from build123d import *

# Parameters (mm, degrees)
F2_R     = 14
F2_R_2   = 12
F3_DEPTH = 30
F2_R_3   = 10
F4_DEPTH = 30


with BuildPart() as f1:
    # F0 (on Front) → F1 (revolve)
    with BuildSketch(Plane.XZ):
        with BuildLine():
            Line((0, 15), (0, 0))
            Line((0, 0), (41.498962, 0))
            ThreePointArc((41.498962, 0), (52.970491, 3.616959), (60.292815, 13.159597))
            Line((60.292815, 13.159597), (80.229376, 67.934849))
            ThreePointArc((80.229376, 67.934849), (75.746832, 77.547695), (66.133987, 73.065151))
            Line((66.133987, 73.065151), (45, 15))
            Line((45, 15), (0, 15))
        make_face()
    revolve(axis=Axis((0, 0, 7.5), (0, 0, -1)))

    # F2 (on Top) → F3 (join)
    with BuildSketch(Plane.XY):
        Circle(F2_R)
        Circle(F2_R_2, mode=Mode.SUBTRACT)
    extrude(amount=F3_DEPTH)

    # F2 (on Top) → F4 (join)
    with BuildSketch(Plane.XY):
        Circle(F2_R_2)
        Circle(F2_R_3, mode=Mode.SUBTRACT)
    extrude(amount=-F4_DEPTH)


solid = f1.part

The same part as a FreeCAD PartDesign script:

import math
import FreeCAD as App
import Part
import Sketcher
from FreeCAD import Vector
Q = App.Units.Quantity

doc = App.newDocument("Part")
body = doc.addObject("PartDesign::Body", "Body")

sketch1 = body.newObject("Sketcher::SketchObject", "Sketch")
sketch1.AttachmentSupport = (doc.getObject("XZ_Plane"), [""])
sketch1.MapMode = "FlatFace"
sketch1.addGeometry([
    Part.LineSegment(Vector(0, 15, 0), Vector(0, 0, 0)),
    Part.LineSegment(Vector(0, 0, 0), Vector(41.498962, 0, 0)),
    Part.ArcOfCircle(Part.Circle(Vector(41.498962, 20.000001, 0), Vector(0, 0, 1), 20.000001), math.radians(-90.000001), math.radians(-20.000001)),
    Part.LineSegment(Vector(60.292815, 13.159597, 0), Vector(80.229376, 67.934849, 0)),
    Part.ArcOfCircle(Part.Circle(Vector(73.181682, 70.5, 0), Vector(0, 0, 1), 7.5), math.radians(-20.000002), math.radians(160.000002)),
    Part.LineSegment(Vector(66.133987, 73.065151, 0), Vector(45, 15, 0)),
    Part.LineSegment(Vector(45, 15, 0), Vector(0, 15, 0)),
], False)
sketch1.addConstraint([
    Sketcher.Constraint("Coincident", 0, 2, 1, 1),
    Sketcher.Constraint("Tangent", 1, 2, 2, 1),
    Sketcher.Constraint("Tangent", 2, 2, 3, 1),
    Sketcher.Constraint("Tangent", 3, 2, 4, 1),
    Sketcher.Constraint("Tangent", 4, 2, 5, 1),
    Sketcher.Constraint("Coincident", 5, 2, 6, 1),
    Sketcher.Constraint("Coincident", 6, 2, 0, 1),
    Sketcher.Constraint("Vertical", 0),
    Sketcher.Constraint("Horizontal", 1),
    Sketcher.Constraint("Horizontal", 6),
    Sketcher.Constraint("Coincident", 0, 2, -1, 1),
    Sketcher.Constraint("Parallel", 3, 5),
    Sketcher.Constraint("Radius", 2, 20.000001),
    Sketcher.Constraint("Radius", 4, 7.5),
    Sketcher.Constraint("DistanceX", 6, 2, 6, 1, 45.0),
    Sketcher.Constraint("DistanceY", 0, 2, 0, 1, 15.0),
    Sketcher.Constraint("Angle", 3, Q("70 deg")),
    Sketcher.Constraint("DistanceY", -1, 1, 4, 3, 70.5),
])
revolution = body.newObject("PartDesign::Revolution", "Revolution")
revolution.Profile = sketch1
revolution.ReferenceAxis = (sketch1, ["V_Axis"])
revolution.Angle = 360

sketch2 = body.newObject("Sketcher::SketchObject", "Sketch001")
sketch2.AttachmentSupport = (doc.getObject("XY_Plane"), [""])
sketch2.MapMode = "FlatFace"
sketch2.addGeometry([
    Part.Circle(Vector(0, 0, 0), Vector(0, 0, 1), 14),
    Part.Circle(Vector(0, 0, 0), Vector(0, 0, 1), 12),
], False)
sketch2.addConstraint([
    Sketcher.Constraint("Coincident", 0, 3, -1, 1),
    Sketcher.Constraint("Coincident", 1, 3, -1, 1),
    Sketcher.Constraint("Diameter", 0, 28.0),
    Sketcher.Constraint("Diameter", 1, 24.0),
])
pad1 = body.newObject("PartDesign::Pad", "Pad")
pad1.Profile = sketch2
pad1.Length = 30

sketch3 = body.newObject("Sketcher::SketchObject", "Sketch002")
sketch3.AttachmentSupport = (doc.getObject("XY_Plane"), [""])
sketch3.MapMode = "FlatFace"
sketch3.addGeometry([
    Part.Circle(Vector(0, 0, 0), Vector(0, 0, 1), 12),
    Part.Circle(Vector(0, 0, 0), Vector(0, 0, 1), 10),
], False)
sketch3.addConstraint([
    Sketcher.Constraint("Coincident", 0, 3, -1, 1),
    Sketcher.Constraint("Coincident", 1, 3, -1, 1),
    Sketcher.Constraint("Diameter", 0, 24.0),
    Sketcher.Constraint("Diameter", 1, 20.0),
])
pad2 = body.newObject("PartDesign::Pad", "Pad001")
pad2.Profile = sketch3
pad2.Length = 30
pad2.Reversed = True

doc.recompute()
